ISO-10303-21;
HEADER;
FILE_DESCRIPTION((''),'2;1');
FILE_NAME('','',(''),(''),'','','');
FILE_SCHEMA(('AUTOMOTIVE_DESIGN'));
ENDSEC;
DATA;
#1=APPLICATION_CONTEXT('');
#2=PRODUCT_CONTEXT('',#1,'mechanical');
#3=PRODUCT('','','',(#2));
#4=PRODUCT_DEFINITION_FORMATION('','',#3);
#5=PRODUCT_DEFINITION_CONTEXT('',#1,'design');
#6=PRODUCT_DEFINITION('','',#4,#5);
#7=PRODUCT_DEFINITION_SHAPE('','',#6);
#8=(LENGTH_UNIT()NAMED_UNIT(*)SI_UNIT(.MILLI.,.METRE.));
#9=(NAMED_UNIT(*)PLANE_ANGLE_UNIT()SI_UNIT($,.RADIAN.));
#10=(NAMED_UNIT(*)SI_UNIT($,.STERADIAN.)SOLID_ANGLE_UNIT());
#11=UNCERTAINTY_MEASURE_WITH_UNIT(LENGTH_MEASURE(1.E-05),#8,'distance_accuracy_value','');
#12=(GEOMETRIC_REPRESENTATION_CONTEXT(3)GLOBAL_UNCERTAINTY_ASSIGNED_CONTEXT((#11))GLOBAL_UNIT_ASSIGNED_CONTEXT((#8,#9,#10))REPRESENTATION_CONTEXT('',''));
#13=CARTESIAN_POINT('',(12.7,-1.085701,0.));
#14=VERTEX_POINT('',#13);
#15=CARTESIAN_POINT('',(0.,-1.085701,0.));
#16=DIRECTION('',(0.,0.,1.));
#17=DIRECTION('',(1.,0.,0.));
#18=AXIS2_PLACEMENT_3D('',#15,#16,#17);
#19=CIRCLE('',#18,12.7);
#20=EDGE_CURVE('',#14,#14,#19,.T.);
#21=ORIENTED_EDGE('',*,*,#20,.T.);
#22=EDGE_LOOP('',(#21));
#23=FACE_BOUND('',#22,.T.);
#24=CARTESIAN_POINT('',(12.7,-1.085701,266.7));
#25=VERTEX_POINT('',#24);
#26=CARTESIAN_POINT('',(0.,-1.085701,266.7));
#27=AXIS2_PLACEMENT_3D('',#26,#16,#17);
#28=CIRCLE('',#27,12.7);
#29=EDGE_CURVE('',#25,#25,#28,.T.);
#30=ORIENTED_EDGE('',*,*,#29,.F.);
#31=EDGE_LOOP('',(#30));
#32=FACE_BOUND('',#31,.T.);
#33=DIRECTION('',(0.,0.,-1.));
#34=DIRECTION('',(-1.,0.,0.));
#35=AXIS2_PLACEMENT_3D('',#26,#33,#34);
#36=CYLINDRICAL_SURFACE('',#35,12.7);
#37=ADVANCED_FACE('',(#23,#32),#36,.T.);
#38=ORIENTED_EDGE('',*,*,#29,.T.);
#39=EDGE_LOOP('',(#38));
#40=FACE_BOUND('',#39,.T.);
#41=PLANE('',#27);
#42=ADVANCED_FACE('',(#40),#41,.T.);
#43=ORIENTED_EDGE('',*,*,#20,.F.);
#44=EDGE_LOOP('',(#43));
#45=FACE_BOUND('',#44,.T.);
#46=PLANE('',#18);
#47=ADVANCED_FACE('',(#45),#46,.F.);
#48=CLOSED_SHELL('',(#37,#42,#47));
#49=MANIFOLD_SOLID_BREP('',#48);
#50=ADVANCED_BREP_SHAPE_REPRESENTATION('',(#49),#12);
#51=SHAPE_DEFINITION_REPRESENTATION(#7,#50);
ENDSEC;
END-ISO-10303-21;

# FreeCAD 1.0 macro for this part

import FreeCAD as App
import Part
import Sketcher
from FreeCAD import Vector
Q = App.Units.Quantity

doc = App.newDocument("Part")
params = doc.addObject("Spreadsheet::Sheet", "Params")
for row, (alias, value) in enumerate([
    ("sketch1_diameter", "1 in"),
    ("pad1_length", "10.5 in"),
], start=1):
    params.set(f"A{row}", alias)
    params.set(f"B{row}", "=" + value)
    params.setAlias(f"B{row}", alias)

body = doc.addObject("PartDesign::Body", "Body")

# Sketch on XY plane
sketch1 = doc.addObject("Sketcher::SketchObject", "Sketch")
body.addObject(sketch1)
sketch1.AttachmentSupport = (doc.XY_Plane, [""])
sketch1.MapMode = "FlatFace"
sketch1.addGeometry(Part.Circle(Vector(0, -1, 0), Vector(0, 0, 1), 13), False)
sketch1.addConstraint([
    Sketcher.Constraint("PointOnObject", 0, 3, -2),
    Sketcher.Constraint("Diameter", 0, Q("1 in")),
    Sketcher.Constraint("DistanceY", 0, 3, -1, 1, 1.085701),
])
sketch1.setExpression("Constraints[1]", "Params.sketch1_diameter")
pad1 = doc.addObject("PartDesign::Pad", "Pad")
body.addObject(pad1)
pad1.Profile = sketch1
pad1.setExpression("Length", "Params.pad1_length")

doc.recompute()
